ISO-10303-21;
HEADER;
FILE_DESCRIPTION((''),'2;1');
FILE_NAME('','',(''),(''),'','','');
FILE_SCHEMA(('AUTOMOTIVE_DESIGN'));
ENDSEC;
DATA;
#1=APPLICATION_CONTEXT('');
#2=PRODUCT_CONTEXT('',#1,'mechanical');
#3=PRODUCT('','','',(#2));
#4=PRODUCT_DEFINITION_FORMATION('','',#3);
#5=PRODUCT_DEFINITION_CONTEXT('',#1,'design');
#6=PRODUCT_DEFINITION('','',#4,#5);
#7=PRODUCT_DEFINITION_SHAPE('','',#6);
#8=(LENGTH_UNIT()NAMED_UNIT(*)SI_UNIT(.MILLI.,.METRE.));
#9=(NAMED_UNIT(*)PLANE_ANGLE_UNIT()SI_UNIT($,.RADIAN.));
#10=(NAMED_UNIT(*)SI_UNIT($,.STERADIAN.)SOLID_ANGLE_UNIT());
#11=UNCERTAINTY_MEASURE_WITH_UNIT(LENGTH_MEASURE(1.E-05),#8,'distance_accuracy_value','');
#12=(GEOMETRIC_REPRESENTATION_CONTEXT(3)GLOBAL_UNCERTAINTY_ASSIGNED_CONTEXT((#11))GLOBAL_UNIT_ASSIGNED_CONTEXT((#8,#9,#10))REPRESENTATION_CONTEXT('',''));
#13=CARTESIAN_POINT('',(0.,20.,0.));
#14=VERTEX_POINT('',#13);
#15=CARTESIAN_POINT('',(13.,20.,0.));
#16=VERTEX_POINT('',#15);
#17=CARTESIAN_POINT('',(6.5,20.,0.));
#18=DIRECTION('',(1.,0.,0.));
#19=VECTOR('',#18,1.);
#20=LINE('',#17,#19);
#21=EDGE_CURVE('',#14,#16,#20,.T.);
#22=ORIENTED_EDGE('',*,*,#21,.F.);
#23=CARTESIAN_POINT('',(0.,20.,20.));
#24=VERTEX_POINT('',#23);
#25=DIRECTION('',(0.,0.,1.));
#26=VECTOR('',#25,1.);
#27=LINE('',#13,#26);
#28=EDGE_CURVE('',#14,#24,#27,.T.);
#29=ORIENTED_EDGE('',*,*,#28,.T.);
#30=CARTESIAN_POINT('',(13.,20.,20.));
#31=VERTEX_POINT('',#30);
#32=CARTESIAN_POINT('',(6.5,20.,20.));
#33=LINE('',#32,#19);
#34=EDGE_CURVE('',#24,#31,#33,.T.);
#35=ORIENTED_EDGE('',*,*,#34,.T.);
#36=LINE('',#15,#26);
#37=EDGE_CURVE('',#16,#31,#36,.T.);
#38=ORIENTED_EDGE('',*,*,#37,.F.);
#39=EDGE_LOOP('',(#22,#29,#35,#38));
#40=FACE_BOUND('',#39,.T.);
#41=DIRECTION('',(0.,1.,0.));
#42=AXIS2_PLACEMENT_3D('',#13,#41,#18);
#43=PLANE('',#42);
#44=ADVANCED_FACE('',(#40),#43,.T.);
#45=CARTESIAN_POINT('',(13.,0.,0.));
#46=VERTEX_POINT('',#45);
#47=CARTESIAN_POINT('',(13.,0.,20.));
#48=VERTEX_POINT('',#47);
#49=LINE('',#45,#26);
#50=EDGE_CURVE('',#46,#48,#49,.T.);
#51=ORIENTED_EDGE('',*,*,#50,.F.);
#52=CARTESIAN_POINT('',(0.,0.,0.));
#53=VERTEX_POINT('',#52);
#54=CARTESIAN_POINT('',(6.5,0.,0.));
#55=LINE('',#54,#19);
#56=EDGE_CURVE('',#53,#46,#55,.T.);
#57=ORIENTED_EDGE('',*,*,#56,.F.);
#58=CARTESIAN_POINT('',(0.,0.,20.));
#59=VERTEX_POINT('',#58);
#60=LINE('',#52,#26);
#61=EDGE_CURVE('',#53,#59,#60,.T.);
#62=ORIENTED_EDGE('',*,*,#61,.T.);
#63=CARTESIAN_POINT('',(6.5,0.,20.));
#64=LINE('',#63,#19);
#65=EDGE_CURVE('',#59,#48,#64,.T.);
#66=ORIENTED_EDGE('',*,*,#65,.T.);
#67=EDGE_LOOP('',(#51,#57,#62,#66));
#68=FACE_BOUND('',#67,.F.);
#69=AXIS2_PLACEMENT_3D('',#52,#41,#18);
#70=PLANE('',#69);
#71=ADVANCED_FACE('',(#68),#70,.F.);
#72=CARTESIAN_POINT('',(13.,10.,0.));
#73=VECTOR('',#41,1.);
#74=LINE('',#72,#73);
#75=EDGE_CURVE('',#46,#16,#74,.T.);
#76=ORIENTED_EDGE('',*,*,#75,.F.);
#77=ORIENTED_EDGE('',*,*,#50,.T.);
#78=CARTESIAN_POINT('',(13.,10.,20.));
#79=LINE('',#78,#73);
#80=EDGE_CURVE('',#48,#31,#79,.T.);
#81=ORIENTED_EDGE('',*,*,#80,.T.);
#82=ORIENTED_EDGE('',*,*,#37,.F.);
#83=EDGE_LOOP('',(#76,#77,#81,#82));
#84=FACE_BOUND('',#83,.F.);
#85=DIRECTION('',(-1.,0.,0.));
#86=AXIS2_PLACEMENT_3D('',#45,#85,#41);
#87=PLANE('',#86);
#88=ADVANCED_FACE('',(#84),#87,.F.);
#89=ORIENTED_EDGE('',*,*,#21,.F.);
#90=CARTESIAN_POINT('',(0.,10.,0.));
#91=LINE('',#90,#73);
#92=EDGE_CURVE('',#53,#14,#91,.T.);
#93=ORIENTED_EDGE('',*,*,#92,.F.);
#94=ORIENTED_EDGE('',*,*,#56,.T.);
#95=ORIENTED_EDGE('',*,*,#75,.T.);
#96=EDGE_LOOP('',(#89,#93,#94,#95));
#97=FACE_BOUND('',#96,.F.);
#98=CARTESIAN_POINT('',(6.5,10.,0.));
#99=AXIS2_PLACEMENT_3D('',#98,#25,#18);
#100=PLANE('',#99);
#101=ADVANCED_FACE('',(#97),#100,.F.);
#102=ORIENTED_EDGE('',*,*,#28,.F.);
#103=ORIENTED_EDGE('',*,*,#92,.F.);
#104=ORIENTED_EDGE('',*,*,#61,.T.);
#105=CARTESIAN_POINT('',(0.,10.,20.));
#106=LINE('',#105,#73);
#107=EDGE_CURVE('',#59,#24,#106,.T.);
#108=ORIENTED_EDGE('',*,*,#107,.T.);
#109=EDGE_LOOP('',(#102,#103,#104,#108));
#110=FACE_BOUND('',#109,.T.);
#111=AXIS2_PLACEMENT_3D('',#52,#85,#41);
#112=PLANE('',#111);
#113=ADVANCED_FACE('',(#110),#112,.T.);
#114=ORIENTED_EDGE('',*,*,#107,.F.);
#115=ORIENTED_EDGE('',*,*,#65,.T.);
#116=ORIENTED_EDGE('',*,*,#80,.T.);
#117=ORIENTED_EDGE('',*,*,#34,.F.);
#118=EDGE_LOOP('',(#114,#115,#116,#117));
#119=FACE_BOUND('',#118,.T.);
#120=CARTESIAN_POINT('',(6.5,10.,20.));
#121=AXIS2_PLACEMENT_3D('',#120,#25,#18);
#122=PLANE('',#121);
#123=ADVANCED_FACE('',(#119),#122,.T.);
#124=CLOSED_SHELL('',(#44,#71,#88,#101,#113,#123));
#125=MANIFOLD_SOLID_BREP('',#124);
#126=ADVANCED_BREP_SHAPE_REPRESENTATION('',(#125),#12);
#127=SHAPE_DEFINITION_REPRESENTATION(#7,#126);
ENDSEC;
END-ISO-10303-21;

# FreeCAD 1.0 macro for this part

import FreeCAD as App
import Part
import Sketcher

V = App.Vector
Q = App.Units.Quantity


def add_polygon(sketch, points):
    """Adds a closed chain of lines whose ends are joined by coincident constraints."""
    first, n = sketch.GeometryCount, len(points)
    for a, b in zip(points, points[1:] + points[:1]):
        sketch.addGeometry(Part.LineSegment(App.Vector(*a, 0), App.Vector(*b, 0)), False)
    for i in range(n):
        sketch.addConstraint(Sketcher.Constraint("Coincident", first + i, 2, first + (i + 1) % n, 1))

doc = App.newDocument("Part")
params = doc.addObject("Spreadsheet::Sheet", "Params")
for row, (alias, value) in enumerate([
    ("sketch1_width", "13 mm"),
    ("sketch1_height", "20 mm"),
    ("pad1_length", "20 mm"),
], start=1):
    params.set(f"A{row}", alias)
    params.set(f"B{row}", "=" + value)
    params.setAlias(f"B{row}", alias)

body = doc.addObject("PartDesign::Body", "Body")

# Sketch on XY plane
sketch1 = doc.addObject("Sketcher::SketchObject", "Sketch")
body.addObject(sketch1)
sketch1.AttachmentSupport = (doc.XY_Plane, [""])
sketch1.MapMode = "FlatFace"
add_polygon(sketch1, [(0, 20), (0, 0), (13, 0), (13, 20)])  # lines 0-3
sketch1.addConstraint([
    Sketcher.Constraint("Vertical", 0),
    Sketcher.Constraint("Horizontal", 1),
    Sketcher.Constraint("Vertical", 2),
    Sketcher.Constraint("Horizontal", 3),
    Sketcher.Constraint("Coincident", 0, 2, -1, 1),
    Sketcher.Constraint("DistanceX", 1, 1, 1, 2, Q("13 mm")),
    Sketcher.Constraint("DistanceY", 0, 2, 0, 1, Q("20 mm")),
])
sketch1.setExpression("Constraints[9]", "Params.sketch1_width")
sketch1.setExpression("Constraints[10]", "Params.sketch1_height")
pad1 = doc.addObject("PartDesign::Pad", "Pad")
body.addObject(pad1)
pad1.Profile = sketch1
pad1.setExpression("Length", "Params.pad1_length")

doc.recompute()
